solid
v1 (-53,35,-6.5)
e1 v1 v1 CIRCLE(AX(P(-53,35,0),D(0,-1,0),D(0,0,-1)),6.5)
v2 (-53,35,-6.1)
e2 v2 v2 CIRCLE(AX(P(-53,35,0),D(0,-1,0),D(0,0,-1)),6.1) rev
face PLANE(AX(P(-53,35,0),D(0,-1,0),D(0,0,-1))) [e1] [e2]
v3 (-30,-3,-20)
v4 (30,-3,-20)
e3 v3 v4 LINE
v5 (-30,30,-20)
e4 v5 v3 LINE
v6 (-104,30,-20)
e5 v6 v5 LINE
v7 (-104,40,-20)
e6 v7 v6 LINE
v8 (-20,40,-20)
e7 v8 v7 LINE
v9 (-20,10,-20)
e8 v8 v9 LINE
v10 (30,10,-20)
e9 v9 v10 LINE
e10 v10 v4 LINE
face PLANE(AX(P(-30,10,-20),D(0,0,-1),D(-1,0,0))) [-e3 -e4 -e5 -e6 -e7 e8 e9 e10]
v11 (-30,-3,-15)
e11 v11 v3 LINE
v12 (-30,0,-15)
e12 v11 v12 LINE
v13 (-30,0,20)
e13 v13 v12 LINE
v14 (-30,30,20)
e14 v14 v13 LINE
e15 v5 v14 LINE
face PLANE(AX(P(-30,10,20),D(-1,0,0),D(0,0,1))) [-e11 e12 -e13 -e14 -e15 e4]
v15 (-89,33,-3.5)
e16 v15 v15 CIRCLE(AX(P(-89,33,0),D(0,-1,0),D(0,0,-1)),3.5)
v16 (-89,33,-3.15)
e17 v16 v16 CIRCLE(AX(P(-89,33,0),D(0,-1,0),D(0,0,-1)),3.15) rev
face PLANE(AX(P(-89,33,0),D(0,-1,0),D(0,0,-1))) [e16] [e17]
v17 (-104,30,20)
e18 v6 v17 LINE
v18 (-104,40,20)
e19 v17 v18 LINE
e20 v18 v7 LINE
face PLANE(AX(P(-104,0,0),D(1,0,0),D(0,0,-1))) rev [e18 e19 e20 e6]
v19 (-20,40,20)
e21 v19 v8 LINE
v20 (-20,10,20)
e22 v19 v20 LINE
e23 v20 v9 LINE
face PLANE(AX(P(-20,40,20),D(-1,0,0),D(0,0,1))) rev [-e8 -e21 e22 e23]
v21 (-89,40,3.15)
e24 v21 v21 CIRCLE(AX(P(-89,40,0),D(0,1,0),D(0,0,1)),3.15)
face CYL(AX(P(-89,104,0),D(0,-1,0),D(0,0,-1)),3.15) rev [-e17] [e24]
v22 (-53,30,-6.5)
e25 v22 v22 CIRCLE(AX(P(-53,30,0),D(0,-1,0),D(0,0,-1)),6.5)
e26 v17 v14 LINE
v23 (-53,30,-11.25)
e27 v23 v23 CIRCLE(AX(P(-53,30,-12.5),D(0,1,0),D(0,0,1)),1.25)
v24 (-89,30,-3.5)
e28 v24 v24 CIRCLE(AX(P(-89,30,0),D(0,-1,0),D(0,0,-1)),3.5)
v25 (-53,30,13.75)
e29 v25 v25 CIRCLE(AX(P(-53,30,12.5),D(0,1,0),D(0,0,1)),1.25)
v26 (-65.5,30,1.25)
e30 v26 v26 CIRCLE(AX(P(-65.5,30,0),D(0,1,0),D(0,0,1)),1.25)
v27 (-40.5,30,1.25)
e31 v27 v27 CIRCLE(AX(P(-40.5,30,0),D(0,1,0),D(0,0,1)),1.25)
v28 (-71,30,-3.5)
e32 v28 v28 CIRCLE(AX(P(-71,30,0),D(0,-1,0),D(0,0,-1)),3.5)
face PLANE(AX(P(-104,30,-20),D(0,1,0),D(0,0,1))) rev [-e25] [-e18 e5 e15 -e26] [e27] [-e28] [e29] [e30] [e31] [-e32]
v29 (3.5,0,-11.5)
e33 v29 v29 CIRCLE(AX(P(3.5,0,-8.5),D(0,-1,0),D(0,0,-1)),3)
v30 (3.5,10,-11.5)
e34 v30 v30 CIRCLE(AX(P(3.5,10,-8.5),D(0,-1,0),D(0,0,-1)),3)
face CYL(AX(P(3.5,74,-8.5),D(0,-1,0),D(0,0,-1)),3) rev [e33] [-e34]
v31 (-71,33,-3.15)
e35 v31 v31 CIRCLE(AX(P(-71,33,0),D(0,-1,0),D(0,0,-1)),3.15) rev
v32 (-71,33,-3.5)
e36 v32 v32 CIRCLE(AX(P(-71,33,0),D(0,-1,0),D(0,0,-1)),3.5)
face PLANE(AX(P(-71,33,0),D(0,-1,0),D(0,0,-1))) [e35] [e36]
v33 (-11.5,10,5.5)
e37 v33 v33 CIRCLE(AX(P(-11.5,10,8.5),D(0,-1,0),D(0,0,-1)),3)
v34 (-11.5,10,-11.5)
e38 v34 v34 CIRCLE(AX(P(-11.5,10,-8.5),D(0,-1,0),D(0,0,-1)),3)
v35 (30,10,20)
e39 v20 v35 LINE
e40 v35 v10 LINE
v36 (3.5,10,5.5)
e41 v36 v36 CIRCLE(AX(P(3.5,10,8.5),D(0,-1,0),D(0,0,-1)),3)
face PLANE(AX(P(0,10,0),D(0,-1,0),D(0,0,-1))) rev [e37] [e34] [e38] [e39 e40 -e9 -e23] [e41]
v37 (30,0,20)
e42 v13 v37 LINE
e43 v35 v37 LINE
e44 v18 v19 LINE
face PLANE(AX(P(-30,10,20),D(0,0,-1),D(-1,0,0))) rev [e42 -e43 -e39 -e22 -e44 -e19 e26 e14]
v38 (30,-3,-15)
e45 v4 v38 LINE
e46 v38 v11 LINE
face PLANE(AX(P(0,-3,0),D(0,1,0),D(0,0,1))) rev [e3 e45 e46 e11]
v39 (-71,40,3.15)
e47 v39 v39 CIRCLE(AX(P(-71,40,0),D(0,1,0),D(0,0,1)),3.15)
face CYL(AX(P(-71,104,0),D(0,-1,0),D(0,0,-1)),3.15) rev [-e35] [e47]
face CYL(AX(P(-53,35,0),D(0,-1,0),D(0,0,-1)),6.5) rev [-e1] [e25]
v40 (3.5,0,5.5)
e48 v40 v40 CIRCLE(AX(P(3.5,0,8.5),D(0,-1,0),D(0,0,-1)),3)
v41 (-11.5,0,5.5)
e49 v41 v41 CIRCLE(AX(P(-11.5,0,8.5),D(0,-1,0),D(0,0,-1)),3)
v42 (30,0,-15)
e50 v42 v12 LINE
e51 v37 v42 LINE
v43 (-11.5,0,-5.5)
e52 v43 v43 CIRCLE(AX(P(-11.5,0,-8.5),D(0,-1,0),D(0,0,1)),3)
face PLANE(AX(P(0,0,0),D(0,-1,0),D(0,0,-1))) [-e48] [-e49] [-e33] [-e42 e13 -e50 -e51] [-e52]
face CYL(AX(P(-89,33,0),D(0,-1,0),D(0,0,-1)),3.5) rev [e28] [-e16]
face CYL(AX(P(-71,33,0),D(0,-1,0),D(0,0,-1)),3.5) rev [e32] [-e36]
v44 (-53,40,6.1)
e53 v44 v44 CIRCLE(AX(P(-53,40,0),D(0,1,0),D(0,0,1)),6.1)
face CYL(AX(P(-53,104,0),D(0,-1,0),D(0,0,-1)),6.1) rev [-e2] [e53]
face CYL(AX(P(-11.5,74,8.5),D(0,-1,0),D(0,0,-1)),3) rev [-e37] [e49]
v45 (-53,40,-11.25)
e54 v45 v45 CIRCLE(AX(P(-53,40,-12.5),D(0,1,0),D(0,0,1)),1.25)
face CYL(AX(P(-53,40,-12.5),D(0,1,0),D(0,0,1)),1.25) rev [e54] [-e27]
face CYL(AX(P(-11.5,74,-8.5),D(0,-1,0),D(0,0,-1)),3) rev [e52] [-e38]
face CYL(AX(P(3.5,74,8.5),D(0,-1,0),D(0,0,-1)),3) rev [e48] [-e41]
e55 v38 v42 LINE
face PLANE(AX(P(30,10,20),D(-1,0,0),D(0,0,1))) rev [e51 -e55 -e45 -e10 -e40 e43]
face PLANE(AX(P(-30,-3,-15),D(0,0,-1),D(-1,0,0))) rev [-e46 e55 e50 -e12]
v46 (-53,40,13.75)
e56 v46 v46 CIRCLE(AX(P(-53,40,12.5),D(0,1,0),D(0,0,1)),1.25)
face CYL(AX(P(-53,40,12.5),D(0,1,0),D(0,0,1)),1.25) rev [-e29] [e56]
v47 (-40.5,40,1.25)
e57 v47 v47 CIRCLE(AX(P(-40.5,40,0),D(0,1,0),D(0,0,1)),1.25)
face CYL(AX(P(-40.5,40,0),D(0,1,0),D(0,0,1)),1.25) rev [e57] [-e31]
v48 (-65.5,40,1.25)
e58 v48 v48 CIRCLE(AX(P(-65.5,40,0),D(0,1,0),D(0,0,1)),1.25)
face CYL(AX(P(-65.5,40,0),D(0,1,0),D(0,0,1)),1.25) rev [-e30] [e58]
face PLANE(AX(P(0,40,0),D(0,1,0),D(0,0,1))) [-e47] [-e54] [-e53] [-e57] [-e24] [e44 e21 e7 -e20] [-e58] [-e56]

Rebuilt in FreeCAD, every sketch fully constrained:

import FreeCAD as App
import Part
import Sketcher


def add_polygon(sketch, points):
    """Adds a closed chain of lines whose ends are joined by coincident constraints."""
    first, n = sketch.GeometryCount, len(points)
    for a, b in zip(points, points[1:] + points[:1]):
        sketch.addGeometry(Part.LineSegment(App.Vector(*a, 0), App.Vector(*b, 0)), False)
    for i in range(n):
        sketch.addConstraint(Sketcher.Constraint("Coincident", first + i, 2, first + (i + 1) % n, 1))

doc = App.newDocument("Part")
body = doc.addObject("PartDesign::Body", "Body")

# Sketch on XZ plane
sketch1 = body.newObject("Sketcher::SketchObject", "Sketch")
sketch1.AttachmentSupport = (doc.getObject("XZ_Plane"), [""])
sketch1.MapMode = "FlatFace"
add_polygon(sketch1, [(-30, -20), (-30, 20), (30, 20), (30, -20)])  # lines 0-3
sketch1.addConstraint([
    Sketcher.Constraint("Vertical", 0),
    Sketcher.Constraint("Horizontal", 1),
    Sketcher.Constraint("Vertical", 2),
    Sketcher.Constraint("Horizontal", 3),
    Sketcher.Constraint("Symmetric", 0, 2, 2, 2, -1, 1),
    Sketcher.Constraint("DistanceX", 1, 1, 1, 2, 60.0),
    Sketcher.Constraint("DistanceY", 0, 1, 0, 2, 40.0),
])
pad1 = body.newObject("PartDesign::Pad", "Pad")
pad1.Profile = sketch1
pad1.Length = 10
pad1.Reversed = True

# Sketch on XZ plane
sketch2 = body.newObject("Sketcher::SketchObject", "Sketch001")
sketch2.AttachmentSupport = (doc.getObject("XZ_Plane"), [""])
sketch2.MapMode = "FlatFace"
sketch2.AttachmentOffset = App.Placement(App.Vector(0, 0, -10), App.Rotation())
add_polygon(sketch2, [(-30, -20), (-30, 20), (-20, 20), (-20, -20)])  # lines 0-3
sketch2.addConstraint([
    Sketcher.Constraint("Vertical", 0),
    Sketcher.Constraint("Horizontal", 1),
    Sketcher.Constraint("Vertical", 2),
    Sketcher.Constraint("Horizontal", 3),
    Sketcher.Constraint("DistanceX", 1, 1, 1, 2, 10.0),
    Sketcher.Constraint("DistanceY", 0, 1, 0, 2, 40.0),
    Sketcher.Constraint("DistanceX", 0, 2, -1, 1, 30.0),
    Sketcher.Constraint("DistanceY", -1, 1, 0, 2, 20.0),
])
pad2 = body.newObject("PartDesign::Pad", "Pad001")
pad2.Profile = sketch2
pad2.Length = 30
pad2.Reversed = True

# Sketch on YZ plane
sketch3 = body.newObject("Sketcher::SketchObject", "Sketch002")
sketch3.AttachmentSupport = (doc.getObject("YZ_Plane"), [""])
sketch3.MapMode = "FlatFace"
sketch3.AttachmentOffset = App.Placement(App.Vector(0, 0, -30), App.Rotation())
add_polygon(sketch3, [(40, -20), (30, -20), (30, 20), (40, 20)])  # lines 0-3
sketch3.addConstraint([
    Sketcher.Constraint("Horizontal", 0),
    Sketcher.Constraint("Vertical", 1),
    Sketcher.Constraint("Horizontal", 2),
    Sketcher.Constraint("Vertical", 3),
    Sketcher.Constraint("DistanceX", 0, 2, 0, 1, 10.0),
    Sketcher.Constraint("DistanceY", 1, 1, 1, 2, 40.0),
    Sketcher.Constraint("DistanceX", -1, 1, 0, 2, 30.0),
    Sketcher.Constraint("DistanceY", 0, 2, -1, 1, 20.0),
])
pad3 = body.newObject("PartDesign::Pad", "Pad002")
pad3.Profile = sketch3
pad3.Length = 74
pad3.Reversed = True

# Sketch on XZ plane
sketch4 = body.newObject("Sketcher::SketchObject", "Sketch003")
sketch4.AttachmentSupport = (doc.getObject("XZ_Plane"), [""])
sketch4.MapMode = "FlatFace"
sketch4.AttachmentOffset = App.Placement(App.Vector(0, 0, -30), App.Rotation())
sketch4.addGeometry([
    Part.Circle(App.Vector(-53, 0, 0), App.Vector(0, 0, 1), 6.1),
    Part.Circle(App.Vector(-71, 0, 0), App.Vector(0, 0, 1), 3.1),
    Part.Circle(App.Vector(-89, 0, 0), App.Vector(0, 0, 1), 3.1),
], False)
sketch4.addConstraint([
    Sketcher.Constraint("Equal", 1, 2),
    Sketcher.Constraint("PointOnObject", 0, 3, -1),
    Sketcher.Constraint("PointOnObject", 1, 3, -1),
    Sketcher.Constraint("PointOnObject", 2, 3, -1),
    Sketcher.Constraint("Diameter", 0, 12.2),
    Sketcher.Constraint("Diameter", 1, 6.3),
    Sketcher.Constraint("DistanceX", 0, 3, -1, 1, 53.0),
    Sketcher.Constraint("DistanceX", 1, 3, -1, 1, 71.0),
    Sketcher.Constraint("DistanceX", 2, 3, -1, 1, 89.0),
])
pocket1 = body.newObject("PartDesign::Pocket", "Pocket")
pocket1.Profile = sketch4
pocket1.Length = 74

# Sketch on XZ plane
sketch5 = body.newObject("Sketcher::SketchObject", "Sketch004")
sketch5.AttachmentSupport = (doc.getObject("XZ_Plane"), [""])
sketch5.MapMode = "FlatFace"
sketch5.addGeometry([
    Part.Circle(App.Vector(-11.5, 8.5, 0), App.Vector(0, 0, 1), 3),
    Part.Circle(App.Vector(-11.5, -8.5, 0), App.Vector(0, 0, 1), 3),
    Part.Circle(App.Vector(3.5, 8.5, 0), App.Vector(0, 0, 1), 3),
    Part.Circle(App.Vector(3.5, -8.5, 0), App.Vector(0, 0, 1), 3),
], False)
sketch5.addConstraint([
    Sketcher.Constraint("Equal", 0, 1),
    Sketcher.Constraint("Equal", 1, 2),
    Sketcher.Constraint("Equal", 2, 3),
    Sketcher.Constraint("Symmetric", 0, 3, 1, 3, -1),
    Sketcher.Constraint("Symmetric", 2, 3, 3, 3, -1),
    Sketcher.Constraint("Horizontal", 0, 3, 2, 3),
    Sketcher.Constraint("Diameter", 0, 6.0),
    Sketcher.Constraint("DistanceY", 1, 3, 0, 3, 17.0),
    Sketcher.Constraint("DistanceX", 0, 3, 2, 3, 15.0),
    Sketcher.Constraint("DistanceX", 0, 3, -1, 1, 11.5),
])
pocket2 = body.newObject("PartDesign::Pocket", "Pocket001")
pocket2.Profile = sketch5
pocket2.Length = 74

# Sketch on XZ plane
sketch6 = body.newObject("Sketcher::SketchObject", "Sketch005")
sketch6.AttachmentSupport = (doc.getObject("XZ_Plane"), [""])
sketch6.MapMode = "FlatFace"
sketch6.AttachmentOffset = App.Placement(App.Vector(0, 0, -30), App.Rotation())
sketch6.addGeometry([
    Part.Circle(App.Vector(-89, 0, 0), App.Vector(0, 0, 1), 3.5),
    Part.Circle(App.Vector(-71, 0, 0), App.Vector(0, 0, 1), 3.5),
], False)
sketch6.addConstraint([
    Sketcher.Constraint("Equal", 0, 1),
    Sketcher.Constraint("PointOnObject", 0, 3, -1),
    Sketcher.Constraint("PointOnObject", 1, 3, -1),
    Sketcher.Constraint("Diameter", 0, 7.0),
    Sketcher.Constraint("DistanceX", 0, 3, -1, 1, 89.0),
    Sketcher.Constraint("DistanceX", 1, 3, -1, 1, 71.0),
])
pocket3 = body.newObject("PartDesign::Pocket", "Pocket002")
pocket3.Profile = sketch6
pocket3.Length = 3

# Sketch on XZ plane
sketch7 = body.newObject("Sketcher::SketchObject", "Sketch006")
sketch7.AttachmentSupport = (doc.getObject("XZ_Plane"), [""])
sketch7.MapMode = "FlatFace"
sketch7.AttachmentOffset = App.Placement(App.Vector(0, 0, -30), App.Rotation())
sketch7.addGeometry(Part.Circle(App.Vector(-53, 0, 0), App.Vector(0, 0, 1), 6), False)
sketch7.addConstraint([
    Sketcher.Constraint("PointOnObject", 0, 3, -1),
    Sketcher.Constraint("Diameter", 0, 13.0),
    Sketcher.Constraint("DistanceX", 0, 3, -1, 1, 53.0),
])
pocket4 = body.newObject("PartDesign::Pocket", "Pocket003")
pocket4.Profile = sketch7
pocket4.Length = 5

# Sketch on XZ plane
sketch8 = body.newObject("Sketcher::SketchObject", "Sketch007")
sketch8.AttachmentSupport = (doc.getObject("XZ_Plane"), [""])
sketch8.MapMode = "FlatFace"
sketch8.AttachmentOffset = App.Placement(App.Vector(0, 0, -40), App.Rotation())
sketch8.addGeometry(Part.Circle(App.Vector(-53, -12.5, 0), App.Vector(0, 0, 1), 1.2), False)
sketch8.addConstraint([
    Sketcher.Constraint("Diameter", 0, 2.5),
    Sketcher.Constraint("DistanceX", 0, 3, -1, 1, 53.0),
    Sketcher.Constraint("DistanceY", 0, 3, -1, 1, 12.5),
])
doc.recompute()
hole = body.newObject("PartDesign::Hole", "Hole")
hole.Profile = sketch8
hole.ThreadType = "None"
hole.Diameter = 2.5
hole.DepthType = "ThroughAll"
hole.Reversed = True
doc.recompute()

datumline = body.newObject("PartDesign::Line", "DatumLine")
datumline.Placement = App.Placement(App.Vector(-53, 0, 0), App.Rotation(App.Vector(0, 0, 1), App.Vector(0, 1, 0)))
polarpattern = body.newObject("PartDesign::PolarPattern", "PolarPattern")
polarpattern.Originals = [hole]
polarpattern.Axis = (datumline, [""])
polarpattern.Angle = 360
polarpattern.Occurrences = 4
body.Tip = polarpattern

# Sketch on XZ plane
sketch9 = body.newObject("Sketcher::SketchObject", "Sketch008")
sketch9.AttachmentSupport = (doc.getObject("XZ_Plane"), [""])
sketch9.MapMode = "FlatFace"
add_polygon(sketch9, [(-30, -15), (-30, -20), (30, -20), (30, -15)])  # lines 0-3
sketch9.addConstraint([
    Sketcher.Constraint("Vertical", 0),
    Sketcher.Constraint("Horizontal", 1),
    Sketcher.Constraint("Vertical", 2),
    Sketcher.Constraint("Horizontal", 3),
    Sketcher.Constraint("DistanceX", 1, 1, 1, 2, 60.0),
    Sketcher.Constraint("DistanceY", 0, 2, 0, 1, 5.0),
    Sketcher.Constraint("DistanceX", 0, 2, -1, 1, 30.0),
    Sketcher.Constraint("DistanceY", 0, 2, -1, 1, 20.0),
])
pad4 = body.newObject("PartDesign::Pad", "Pad003")
pad4.Profile = sketch9
pad4.Length = 3

doc.recompute()
